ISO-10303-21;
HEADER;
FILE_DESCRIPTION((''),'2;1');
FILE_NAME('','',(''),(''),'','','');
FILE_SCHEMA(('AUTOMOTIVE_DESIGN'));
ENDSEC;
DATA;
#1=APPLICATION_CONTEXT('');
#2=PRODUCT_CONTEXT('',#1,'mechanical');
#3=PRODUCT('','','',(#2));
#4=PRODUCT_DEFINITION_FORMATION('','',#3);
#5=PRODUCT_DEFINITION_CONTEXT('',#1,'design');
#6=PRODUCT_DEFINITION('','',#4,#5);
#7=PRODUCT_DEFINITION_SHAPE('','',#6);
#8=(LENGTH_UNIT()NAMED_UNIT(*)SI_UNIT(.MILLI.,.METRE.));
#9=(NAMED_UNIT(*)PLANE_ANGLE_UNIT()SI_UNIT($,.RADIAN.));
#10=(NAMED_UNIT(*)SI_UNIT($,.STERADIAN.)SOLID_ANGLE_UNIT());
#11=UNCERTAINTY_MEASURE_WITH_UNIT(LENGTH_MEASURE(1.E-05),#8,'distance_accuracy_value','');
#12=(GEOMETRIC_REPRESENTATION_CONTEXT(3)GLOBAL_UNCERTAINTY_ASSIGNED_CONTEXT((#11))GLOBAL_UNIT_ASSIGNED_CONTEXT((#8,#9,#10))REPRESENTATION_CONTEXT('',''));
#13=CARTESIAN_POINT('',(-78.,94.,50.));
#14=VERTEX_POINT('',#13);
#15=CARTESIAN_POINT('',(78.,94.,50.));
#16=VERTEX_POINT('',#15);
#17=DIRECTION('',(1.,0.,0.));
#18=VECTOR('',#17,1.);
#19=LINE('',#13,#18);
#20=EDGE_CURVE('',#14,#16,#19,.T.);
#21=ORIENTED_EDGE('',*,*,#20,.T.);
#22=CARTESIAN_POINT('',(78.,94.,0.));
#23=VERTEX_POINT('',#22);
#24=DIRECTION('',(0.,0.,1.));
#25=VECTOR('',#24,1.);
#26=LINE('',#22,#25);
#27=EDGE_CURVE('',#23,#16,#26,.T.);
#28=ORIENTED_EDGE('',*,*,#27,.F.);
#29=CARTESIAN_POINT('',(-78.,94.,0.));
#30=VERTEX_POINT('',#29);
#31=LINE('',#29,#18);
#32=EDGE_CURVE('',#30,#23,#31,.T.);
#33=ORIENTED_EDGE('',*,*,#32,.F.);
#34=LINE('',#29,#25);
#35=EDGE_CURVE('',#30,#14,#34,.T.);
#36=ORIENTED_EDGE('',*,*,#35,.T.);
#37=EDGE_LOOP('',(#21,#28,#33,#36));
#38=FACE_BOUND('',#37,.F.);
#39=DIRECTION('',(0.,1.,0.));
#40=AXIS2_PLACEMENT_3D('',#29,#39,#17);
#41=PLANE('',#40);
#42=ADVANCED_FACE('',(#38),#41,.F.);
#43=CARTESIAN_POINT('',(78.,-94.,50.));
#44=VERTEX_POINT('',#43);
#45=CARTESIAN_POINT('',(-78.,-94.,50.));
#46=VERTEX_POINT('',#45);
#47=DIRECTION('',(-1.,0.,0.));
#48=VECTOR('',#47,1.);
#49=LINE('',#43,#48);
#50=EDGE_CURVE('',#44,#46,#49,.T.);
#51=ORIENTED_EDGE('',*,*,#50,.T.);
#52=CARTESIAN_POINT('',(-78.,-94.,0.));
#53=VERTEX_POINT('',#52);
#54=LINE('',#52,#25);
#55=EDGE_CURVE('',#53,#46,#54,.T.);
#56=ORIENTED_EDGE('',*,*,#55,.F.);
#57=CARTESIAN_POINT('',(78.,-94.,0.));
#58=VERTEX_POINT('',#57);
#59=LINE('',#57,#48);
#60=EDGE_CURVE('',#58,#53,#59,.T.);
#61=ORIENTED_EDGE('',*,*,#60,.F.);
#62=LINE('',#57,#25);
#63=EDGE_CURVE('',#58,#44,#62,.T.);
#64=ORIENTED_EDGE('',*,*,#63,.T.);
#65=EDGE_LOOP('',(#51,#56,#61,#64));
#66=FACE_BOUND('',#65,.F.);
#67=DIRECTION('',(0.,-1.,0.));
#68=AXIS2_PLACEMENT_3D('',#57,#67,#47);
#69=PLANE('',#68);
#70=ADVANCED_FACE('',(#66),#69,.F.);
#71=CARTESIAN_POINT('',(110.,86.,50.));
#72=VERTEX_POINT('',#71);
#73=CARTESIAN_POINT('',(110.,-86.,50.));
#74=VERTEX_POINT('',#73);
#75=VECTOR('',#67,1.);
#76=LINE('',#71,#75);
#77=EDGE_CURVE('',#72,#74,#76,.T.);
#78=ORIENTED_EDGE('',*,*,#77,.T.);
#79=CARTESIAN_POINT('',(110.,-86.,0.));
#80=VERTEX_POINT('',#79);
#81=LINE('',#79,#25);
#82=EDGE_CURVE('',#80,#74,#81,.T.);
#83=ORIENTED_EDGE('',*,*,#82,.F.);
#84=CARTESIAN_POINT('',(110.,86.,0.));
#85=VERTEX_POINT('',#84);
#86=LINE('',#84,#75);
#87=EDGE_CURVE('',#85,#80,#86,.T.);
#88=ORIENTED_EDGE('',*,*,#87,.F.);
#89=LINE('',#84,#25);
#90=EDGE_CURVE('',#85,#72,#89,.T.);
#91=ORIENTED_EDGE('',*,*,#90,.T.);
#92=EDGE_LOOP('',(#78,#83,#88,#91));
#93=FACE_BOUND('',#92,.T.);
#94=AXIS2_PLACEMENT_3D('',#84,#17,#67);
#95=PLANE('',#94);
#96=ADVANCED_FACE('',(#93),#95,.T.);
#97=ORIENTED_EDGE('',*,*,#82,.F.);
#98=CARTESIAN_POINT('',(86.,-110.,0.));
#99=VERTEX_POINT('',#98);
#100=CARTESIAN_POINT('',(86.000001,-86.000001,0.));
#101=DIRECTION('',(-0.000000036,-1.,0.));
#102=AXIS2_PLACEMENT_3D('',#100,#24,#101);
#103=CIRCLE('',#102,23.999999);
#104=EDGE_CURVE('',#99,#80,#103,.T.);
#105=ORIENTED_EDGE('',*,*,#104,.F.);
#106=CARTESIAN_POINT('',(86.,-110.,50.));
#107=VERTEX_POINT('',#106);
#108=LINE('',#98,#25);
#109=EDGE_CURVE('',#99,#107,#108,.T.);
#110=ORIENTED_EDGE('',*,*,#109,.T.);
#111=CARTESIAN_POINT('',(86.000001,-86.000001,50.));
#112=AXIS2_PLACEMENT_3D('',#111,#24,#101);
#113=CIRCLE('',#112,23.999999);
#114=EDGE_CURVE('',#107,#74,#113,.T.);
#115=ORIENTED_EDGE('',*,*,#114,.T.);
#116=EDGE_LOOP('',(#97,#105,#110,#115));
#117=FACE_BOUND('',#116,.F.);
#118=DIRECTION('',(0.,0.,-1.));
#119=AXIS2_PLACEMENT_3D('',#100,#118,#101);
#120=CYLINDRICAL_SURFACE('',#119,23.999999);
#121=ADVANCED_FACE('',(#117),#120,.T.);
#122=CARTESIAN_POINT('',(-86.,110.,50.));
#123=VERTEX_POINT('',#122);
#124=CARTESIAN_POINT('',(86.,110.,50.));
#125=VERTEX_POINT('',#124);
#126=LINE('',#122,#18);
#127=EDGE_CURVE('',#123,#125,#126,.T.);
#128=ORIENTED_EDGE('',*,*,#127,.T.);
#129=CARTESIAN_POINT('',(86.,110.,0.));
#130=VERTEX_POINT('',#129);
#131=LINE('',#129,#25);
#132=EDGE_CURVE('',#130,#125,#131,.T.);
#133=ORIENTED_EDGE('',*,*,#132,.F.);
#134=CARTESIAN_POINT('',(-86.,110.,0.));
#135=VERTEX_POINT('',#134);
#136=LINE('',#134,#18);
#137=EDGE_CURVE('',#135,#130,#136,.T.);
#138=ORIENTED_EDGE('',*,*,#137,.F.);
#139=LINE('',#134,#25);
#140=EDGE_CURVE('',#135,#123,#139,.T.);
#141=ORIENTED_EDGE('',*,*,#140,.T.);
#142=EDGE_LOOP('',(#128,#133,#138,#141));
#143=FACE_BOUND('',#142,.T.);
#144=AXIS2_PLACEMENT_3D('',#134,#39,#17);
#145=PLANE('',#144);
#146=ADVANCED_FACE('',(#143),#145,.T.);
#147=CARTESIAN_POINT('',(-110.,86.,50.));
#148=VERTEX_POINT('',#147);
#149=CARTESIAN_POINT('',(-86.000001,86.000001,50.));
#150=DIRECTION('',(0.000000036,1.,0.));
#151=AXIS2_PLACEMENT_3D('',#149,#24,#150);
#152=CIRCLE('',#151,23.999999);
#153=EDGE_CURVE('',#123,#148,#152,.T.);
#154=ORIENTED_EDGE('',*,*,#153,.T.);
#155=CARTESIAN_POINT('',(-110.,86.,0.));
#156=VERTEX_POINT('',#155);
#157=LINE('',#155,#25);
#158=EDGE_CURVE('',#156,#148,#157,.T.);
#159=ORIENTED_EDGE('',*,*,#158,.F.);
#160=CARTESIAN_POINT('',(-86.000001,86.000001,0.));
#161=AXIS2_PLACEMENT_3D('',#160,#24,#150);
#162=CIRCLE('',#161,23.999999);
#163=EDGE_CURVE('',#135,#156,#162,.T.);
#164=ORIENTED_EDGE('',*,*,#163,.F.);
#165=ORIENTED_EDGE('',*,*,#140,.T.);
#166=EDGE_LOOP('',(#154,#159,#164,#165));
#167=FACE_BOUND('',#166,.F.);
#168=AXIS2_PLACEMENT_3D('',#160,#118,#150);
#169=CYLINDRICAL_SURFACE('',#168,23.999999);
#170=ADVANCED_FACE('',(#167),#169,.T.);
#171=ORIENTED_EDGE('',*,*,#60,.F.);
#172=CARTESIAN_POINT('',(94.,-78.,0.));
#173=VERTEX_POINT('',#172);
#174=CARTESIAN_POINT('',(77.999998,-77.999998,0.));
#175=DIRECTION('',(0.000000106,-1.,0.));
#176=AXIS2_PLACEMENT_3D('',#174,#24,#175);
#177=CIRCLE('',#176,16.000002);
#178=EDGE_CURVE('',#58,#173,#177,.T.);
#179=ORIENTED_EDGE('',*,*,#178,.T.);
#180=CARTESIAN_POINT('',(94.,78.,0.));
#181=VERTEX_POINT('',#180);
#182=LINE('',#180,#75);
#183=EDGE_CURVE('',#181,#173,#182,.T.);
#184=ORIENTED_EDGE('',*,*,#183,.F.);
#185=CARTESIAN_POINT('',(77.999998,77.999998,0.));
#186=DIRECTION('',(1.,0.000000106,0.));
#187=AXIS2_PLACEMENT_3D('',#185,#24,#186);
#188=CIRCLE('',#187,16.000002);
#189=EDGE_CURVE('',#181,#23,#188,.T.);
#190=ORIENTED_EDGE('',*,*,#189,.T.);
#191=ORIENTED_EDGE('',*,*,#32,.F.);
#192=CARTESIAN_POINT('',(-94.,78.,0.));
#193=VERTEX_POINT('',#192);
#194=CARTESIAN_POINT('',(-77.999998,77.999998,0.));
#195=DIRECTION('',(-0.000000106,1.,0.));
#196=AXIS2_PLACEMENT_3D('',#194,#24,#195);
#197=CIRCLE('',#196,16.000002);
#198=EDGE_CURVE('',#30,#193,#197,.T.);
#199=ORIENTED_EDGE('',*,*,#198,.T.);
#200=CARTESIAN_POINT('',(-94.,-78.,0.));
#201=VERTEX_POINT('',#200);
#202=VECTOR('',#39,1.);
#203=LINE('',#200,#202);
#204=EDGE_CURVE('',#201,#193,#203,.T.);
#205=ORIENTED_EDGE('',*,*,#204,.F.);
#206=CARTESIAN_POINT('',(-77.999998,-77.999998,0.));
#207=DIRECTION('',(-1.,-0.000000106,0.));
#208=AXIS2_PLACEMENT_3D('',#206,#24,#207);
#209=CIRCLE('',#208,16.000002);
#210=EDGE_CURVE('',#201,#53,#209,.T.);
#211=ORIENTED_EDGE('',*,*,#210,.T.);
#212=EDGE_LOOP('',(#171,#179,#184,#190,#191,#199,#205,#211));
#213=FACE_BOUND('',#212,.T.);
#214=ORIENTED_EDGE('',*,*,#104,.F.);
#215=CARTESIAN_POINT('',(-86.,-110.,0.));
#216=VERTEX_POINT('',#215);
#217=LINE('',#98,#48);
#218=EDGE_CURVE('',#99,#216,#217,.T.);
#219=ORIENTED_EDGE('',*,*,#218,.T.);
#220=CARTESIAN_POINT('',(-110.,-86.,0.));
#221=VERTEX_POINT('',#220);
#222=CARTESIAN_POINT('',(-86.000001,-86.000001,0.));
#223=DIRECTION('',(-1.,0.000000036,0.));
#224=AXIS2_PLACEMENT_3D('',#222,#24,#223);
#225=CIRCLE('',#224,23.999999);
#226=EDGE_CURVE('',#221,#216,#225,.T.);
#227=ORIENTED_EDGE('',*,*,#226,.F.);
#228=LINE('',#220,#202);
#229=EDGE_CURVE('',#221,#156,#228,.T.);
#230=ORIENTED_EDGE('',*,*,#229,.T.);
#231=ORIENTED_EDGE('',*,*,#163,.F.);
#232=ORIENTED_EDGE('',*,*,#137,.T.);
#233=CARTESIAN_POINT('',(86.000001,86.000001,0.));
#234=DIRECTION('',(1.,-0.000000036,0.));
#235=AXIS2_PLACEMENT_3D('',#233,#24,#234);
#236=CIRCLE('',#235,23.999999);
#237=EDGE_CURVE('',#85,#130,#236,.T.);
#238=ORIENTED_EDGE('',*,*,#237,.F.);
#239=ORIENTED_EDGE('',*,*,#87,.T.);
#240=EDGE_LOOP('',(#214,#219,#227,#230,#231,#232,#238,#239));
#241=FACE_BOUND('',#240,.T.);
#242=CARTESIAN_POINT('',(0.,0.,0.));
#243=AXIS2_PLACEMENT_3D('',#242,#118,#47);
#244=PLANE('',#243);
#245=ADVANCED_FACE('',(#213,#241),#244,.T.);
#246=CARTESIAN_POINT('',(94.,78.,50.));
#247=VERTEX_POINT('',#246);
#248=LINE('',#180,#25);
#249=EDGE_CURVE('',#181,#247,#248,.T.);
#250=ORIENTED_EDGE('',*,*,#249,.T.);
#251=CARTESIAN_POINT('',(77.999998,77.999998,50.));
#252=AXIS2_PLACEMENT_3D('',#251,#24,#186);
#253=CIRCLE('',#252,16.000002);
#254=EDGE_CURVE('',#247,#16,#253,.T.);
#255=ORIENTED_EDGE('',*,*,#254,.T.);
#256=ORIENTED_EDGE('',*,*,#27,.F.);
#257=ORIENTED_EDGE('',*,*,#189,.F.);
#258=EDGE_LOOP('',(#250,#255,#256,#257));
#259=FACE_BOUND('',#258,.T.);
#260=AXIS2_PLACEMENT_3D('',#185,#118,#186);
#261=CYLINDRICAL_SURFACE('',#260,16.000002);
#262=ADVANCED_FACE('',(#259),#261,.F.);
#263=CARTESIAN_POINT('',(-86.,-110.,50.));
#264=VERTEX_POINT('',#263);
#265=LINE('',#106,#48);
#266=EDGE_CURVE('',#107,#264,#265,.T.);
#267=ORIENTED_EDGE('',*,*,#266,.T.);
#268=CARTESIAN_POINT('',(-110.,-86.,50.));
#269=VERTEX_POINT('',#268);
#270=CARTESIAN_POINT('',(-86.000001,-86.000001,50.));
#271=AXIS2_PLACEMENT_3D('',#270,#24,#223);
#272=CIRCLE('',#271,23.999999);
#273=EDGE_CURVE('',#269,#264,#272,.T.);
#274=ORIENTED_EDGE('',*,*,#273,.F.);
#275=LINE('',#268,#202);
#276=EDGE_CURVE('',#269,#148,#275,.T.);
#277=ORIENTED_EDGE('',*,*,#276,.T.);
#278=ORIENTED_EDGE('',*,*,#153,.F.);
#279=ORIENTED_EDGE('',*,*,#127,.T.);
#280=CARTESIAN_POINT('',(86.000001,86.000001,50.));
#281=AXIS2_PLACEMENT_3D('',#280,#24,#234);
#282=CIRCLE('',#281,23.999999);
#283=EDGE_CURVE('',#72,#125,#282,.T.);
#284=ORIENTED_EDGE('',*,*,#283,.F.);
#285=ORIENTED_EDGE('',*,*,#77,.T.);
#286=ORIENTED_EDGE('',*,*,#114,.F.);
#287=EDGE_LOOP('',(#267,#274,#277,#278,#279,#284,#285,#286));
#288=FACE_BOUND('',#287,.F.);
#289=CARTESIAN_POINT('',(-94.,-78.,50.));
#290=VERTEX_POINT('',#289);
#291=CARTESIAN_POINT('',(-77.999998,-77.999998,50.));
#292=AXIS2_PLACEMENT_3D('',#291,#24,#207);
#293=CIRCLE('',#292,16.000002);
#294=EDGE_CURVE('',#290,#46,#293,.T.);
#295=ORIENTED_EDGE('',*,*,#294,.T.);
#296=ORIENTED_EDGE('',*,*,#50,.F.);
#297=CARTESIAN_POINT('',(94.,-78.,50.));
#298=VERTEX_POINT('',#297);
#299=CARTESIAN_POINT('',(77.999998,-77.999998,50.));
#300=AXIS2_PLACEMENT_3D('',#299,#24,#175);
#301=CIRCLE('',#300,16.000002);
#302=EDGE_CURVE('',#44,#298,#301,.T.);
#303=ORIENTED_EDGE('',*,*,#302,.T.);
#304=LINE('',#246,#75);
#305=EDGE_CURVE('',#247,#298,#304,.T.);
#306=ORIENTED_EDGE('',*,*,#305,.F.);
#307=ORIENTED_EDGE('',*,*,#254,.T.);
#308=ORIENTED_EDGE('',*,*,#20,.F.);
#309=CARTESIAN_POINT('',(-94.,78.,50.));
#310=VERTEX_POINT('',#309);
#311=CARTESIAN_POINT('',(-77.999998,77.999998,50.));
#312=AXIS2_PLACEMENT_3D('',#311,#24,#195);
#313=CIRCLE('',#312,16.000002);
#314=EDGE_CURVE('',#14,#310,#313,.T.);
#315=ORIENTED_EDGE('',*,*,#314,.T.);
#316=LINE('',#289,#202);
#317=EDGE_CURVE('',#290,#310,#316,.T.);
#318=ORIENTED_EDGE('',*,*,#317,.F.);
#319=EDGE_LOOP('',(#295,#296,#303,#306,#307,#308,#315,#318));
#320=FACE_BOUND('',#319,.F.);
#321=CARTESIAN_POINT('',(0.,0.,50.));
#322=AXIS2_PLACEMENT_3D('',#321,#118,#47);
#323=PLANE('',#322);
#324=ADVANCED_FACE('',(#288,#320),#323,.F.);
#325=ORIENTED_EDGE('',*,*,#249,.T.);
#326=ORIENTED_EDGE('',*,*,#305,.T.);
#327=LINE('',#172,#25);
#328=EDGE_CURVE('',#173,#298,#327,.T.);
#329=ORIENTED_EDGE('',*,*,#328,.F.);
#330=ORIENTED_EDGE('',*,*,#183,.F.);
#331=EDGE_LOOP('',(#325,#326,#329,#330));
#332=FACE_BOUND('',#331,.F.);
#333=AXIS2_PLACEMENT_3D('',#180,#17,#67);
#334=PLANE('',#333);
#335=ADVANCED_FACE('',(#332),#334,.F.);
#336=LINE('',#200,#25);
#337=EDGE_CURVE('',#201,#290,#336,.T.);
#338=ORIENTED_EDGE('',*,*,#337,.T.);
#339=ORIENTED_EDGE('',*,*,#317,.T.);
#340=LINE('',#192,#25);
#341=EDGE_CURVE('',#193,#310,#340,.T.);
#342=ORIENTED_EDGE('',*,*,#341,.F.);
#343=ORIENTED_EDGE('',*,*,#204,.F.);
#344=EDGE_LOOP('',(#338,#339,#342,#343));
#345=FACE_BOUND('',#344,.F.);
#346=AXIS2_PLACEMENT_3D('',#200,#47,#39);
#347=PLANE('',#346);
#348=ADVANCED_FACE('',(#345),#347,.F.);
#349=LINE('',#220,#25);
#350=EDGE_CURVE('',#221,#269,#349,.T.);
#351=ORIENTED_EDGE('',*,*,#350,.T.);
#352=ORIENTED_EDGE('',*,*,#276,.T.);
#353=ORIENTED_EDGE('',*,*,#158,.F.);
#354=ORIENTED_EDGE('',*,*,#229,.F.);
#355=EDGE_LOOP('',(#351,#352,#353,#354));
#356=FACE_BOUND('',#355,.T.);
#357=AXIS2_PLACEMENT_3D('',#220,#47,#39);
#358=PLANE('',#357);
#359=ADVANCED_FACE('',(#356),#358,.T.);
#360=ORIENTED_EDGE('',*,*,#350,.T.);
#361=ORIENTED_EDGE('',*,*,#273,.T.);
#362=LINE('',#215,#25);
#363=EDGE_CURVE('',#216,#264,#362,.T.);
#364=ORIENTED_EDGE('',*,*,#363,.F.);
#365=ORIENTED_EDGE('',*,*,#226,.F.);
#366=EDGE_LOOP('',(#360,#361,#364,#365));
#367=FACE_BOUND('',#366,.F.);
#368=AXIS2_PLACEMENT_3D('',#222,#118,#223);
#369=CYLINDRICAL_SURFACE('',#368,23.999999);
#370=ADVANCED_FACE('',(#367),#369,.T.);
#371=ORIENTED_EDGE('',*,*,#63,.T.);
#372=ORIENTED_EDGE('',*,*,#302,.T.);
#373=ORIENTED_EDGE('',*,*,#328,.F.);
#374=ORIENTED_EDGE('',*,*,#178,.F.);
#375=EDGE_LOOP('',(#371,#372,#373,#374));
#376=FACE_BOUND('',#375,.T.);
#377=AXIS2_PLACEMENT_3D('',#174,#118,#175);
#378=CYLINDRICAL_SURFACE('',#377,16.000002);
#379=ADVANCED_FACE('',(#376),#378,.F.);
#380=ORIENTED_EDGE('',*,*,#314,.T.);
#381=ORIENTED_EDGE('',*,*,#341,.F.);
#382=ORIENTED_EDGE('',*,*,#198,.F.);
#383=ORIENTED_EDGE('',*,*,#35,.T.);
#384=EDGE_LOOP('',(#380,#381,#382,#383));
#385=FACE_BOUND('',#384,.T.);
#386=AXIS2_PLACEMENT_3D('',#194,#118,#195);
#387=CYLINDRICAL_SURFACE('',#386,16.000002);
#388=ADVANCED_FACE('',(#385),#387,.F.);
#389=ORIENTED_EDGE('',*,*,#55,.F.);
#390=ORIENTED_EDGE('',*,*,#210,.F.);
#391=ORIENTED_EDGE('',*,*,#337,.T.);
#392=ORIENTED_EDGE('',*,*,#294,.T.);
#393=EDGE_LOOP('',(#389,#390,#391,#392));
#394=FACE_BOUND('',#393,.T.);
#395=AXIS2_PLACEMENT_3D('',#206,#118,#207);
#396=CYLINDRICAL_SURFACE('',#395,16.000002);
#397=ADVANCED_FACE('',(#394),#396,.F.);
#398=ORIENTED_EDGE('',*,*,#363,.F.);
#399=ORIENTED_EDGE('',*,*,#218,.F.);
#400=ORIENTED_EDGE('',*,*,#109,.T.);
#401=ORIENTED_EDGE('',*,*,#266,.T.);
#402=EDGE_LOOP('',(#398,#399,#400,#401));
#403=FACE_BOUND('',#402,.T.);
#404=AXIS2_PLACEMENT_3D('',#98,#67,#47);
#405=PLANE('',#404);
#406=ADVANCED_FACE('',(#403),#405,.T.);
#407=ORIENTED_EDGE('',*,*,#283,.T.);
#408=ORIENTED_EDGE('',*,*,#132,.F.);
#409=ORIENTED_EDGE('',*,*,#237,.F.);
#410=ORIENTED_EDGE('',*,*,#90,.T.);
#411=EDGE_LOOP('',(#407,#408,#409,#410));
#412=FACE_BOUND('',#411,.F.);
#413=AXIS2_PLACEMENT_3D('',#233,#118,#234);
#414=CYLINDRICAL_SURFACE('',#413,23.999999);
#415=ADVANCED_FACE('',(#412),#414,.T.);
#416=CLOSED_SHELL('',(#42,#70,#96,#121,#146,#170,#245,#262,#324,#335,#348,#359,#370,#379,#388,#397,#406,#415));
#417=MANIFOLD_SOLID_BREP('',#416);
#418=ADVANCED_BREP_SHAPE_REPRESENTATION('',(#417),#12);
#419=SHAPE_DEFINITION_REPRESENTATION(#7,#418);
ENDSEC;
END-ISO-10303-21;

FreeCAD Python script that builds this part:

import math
import FreeCAD as App
import Part
import Sketcher

V = App.Vector
Q = App.Units.Quantity

doc = App.newDocument("Part")
params = doc.addObject("Spreadsheet::Sheet", "Params")
for row, (alias, value) in enumerate([
    ("sketch1_radius", "23.999999 mm"),
    ("sketch1_radius2", "16.000002 mm"),
    ("sketch1_width", "172 mm"),
    ("sketch1_width2", "156 mm"),
    ("pad1_length", "50 mm"),
], start=1):
    params.set(f"A{row}", alias)
    params.set(f"B{row}", "=" + value)
    params.setAlias(f"B{row}", alias)

body = doc.addObject("PartDesign::Body", "Body")

sketch1 = body.newObject("Sketcher::SketchObject", "Sketch")
sketch1.AttachmentSupport = (doc.getObject("XY_Plane"), [""])
sketch1.MapMode = "FlatFace"
sketch1.addGeometry([
    Part.LineSegment(V(86, 110, 0), V(-86, 110, 0)),
    Part.ArcOfCircle(Part.Circle(V(-86.000001, 86.000001, 0), V(0, 0, 1), 23.999999), math.radians(89.999998), math.radians(180.000002)),
    Part.LineSegment(V(-110, 86, 0), V(-110, -86, 0)),
    Part.ArcOfCircle(Part.Circle(V(-86.000001, -86.000001, 0), V(0, 0, 1), 23.999999), math.radians(179.999998), math.radians(270.000002)),
    Part.LineSegment(V(-86, -110, 0), V(86, -110, 0)),
    Part.ArcOfCircle(Part.Circle(V(86.000001, -86.000001, 0), V(0, 0, 1), 23.999999), math.radians(-90.000002), math.radians(0.000002)),
    Part.LineSegment(V(110, -86, 0), V(110, 86, 0)),
    Part.ArcOfCircle(Part.Circle(V(86.000001, 86.000001, 0), V(0, 0, 1), 23.999999), math.radians(-0.000002), math.radians(90.000002)),
    Part.LineSegment(V(-78, 94, 0), V(78, 94, 0)),
    Part.ArcOfCircle(Part.Circle(V(77.999998, 77.999998, 0), V(0, 0, 1), 16.000002), math.radians(0.000006), math.radians(89.999994)),
    Part.LineSegment(V(94, 78, 0), V(94, -78, 0)),
    Part.ArcOfCircle(Part.Circle(V(77.999998, -77.999998, 0), V(0, 0, 1), 16.000002), math.radians(-89.999994), math.radians(-0.000006)),
    Part.LineSegment(V(78, -94, 0), V(-78, -94, 0)),
    Part.ArcOfCircle(Part.Circle(V(-77.999998, -77.999998, 0), V(0, 0, 1), 16.000002), math.radians(-179.999994), math.radians(-90.000006)),
    Part.LineSegment(V(-94, -78, 0), V(-94, 78, 0)),
    Part.ArcOfCircle(Part.Circle(V(-77.999998, 77.999998, 0), V(0, 0, 1), 16.000002), math.radians(90.000006), math.radians(179.999994)),
], False)
sketch1.addConstraint([
    Sketcher.Constraint("Tangent", 0, 2, 1, 1),
    Sketcher.Constraint("Tangent", 1, 2, 2, 1),
    Sketcher.Constraint("Tangent", 2, 2, 3, 1),
    Sketcher.Constraint("Tangent", 3, 2, 4, 1),
    Sketcher.Constraint("Tangent", 4, 2, 5, 1),
    Sketcher.Constraint("Tangent", 5, 2, 6, 1),
    Sketcher.Constraint("Tangent", 6, 2, 7, 1),
    Sketcher.Constraint("Tangent", 7, 2, 0, 1),
    Sketcher.Constraint("Tangent", 8, 2, 9, 2),
    Sketcher.Constraint("Tangent", 9, 1, 10, 1),
    Sketcher.Constraint("Tangent", 10, 2, 11, 2),
    Sketcher.Constraint("Tangent", 11, 1, 12, 1),
    Sketcher.Constraint("Tangent", 12, 2, 13, 2),
    Sketcher.Constraint("Tangent", 13, 1, 14, 1),
    Sketcher.Constraint("Tangent", 14, 2, 15, 2),
    Sketcher.Constraint("Tangent", 15, 1, 8, 1),
    Sketcher.Constraint("Horizontal", 0),
    Sketcher.Constraint("Vertical", 2),
    Sketcher.Constraint("Horizontal", 4),
    Sketcher.Constraint("Vertical", 6),
    Sketcher.Constraint("Horizontal", 8),
    Sketcher.Constraint("Vertical", 10),
    Sketcher.Constraint("Horizontal", 12),
    Sketcher.Constraint("Vertical", 14),
    Sketcher.Constraint("Equal", 1, 3),
    Sketcher.Constraint("Equal", 3, 5),
    Sketcher.Constraint("Equal", 5, 7),
    Sketcher.Constraint("Equal", 9, 11),
    Sketcher.Constraint("Equal", 11, 13),
    Sketcher.Constraint("Equal", 13, 15),
    Sketcher.Constraint("Symmetric", 1, 3, 5, 3, -1, 1),
    Sketcher.Constraint("Symmetric", 9, 3, 13, 3, -1, 1),
    Sketcher.Constraint("Equal", 4, 2),
    Sketcher.Constraint("Equal", 12, 10),
    Sketcher.Constraint("Radius", 1, Q("23.999999 mm")),
    Sketcher.Constraint("Radius", 9, Q("16.000002 mm")),
    Sketcher.Constraint("DistanceX", 0, 2, 0, 1, Q("172 mm")),
    Sketcher.Constraint("DistanceX", 8, 1, 8, 2, Q("156 mm")),
])
sketch1.setExpression("Constraints[34]", "Params.sketch1_radius")
sketch1.setExpression("Constraints[35]", "Params.sketch1_radius2")
sketch1.setExpression("Constraints[36]", "Params.sketch1_width")
sketch1.setExpression("Constraints[37]", "Params.sketch1_width2")
pad1 = body.newObject("PartDesign::Pad", "Pad")
pad1.Profile = sketch1
pad1.setExpression("Length", "Params.pad1_length")

doc.recompute()
